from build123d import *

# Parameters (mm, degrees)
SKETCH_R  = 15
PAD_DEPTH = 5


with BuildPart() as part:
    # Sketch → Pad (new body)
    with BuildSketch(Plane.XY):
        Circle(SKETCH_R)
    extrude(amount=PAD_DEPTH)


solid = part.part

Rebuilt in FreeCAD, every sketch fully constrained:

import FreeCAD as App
import Part
import Sketcher
Q = App.Units.Quantity

doc = App.newDocument("Part")
body = doc.addObject("PartDesign::Body", "Body")

sketch1 = doc.addObject("Sketcher::SketchObject", "Sketch")
body.addObject(sketch1)
sketch1.AttachmentSupport = (doc.XY_Plane, [""])
sketch1.MapMode = "FlatFace"
sketch1.addGeometry(Part.Circle(App.Vector(0, 0, 0), App.Vector(0, 0, 1), 15), False)
sketch1.addConstraint([
    Sketcher.Constraint("Coincident", 0, 3, -1, 1),
    Sketcher.Constraint("Diameter", 0, Q("30 mm")),
])
pad1 = doc.addObject("PartDesign::Pad", "Pad")
body.addObject(pad1)
pad1.Profile = sketch1
pad1.Length = 5

doc.recompute()
